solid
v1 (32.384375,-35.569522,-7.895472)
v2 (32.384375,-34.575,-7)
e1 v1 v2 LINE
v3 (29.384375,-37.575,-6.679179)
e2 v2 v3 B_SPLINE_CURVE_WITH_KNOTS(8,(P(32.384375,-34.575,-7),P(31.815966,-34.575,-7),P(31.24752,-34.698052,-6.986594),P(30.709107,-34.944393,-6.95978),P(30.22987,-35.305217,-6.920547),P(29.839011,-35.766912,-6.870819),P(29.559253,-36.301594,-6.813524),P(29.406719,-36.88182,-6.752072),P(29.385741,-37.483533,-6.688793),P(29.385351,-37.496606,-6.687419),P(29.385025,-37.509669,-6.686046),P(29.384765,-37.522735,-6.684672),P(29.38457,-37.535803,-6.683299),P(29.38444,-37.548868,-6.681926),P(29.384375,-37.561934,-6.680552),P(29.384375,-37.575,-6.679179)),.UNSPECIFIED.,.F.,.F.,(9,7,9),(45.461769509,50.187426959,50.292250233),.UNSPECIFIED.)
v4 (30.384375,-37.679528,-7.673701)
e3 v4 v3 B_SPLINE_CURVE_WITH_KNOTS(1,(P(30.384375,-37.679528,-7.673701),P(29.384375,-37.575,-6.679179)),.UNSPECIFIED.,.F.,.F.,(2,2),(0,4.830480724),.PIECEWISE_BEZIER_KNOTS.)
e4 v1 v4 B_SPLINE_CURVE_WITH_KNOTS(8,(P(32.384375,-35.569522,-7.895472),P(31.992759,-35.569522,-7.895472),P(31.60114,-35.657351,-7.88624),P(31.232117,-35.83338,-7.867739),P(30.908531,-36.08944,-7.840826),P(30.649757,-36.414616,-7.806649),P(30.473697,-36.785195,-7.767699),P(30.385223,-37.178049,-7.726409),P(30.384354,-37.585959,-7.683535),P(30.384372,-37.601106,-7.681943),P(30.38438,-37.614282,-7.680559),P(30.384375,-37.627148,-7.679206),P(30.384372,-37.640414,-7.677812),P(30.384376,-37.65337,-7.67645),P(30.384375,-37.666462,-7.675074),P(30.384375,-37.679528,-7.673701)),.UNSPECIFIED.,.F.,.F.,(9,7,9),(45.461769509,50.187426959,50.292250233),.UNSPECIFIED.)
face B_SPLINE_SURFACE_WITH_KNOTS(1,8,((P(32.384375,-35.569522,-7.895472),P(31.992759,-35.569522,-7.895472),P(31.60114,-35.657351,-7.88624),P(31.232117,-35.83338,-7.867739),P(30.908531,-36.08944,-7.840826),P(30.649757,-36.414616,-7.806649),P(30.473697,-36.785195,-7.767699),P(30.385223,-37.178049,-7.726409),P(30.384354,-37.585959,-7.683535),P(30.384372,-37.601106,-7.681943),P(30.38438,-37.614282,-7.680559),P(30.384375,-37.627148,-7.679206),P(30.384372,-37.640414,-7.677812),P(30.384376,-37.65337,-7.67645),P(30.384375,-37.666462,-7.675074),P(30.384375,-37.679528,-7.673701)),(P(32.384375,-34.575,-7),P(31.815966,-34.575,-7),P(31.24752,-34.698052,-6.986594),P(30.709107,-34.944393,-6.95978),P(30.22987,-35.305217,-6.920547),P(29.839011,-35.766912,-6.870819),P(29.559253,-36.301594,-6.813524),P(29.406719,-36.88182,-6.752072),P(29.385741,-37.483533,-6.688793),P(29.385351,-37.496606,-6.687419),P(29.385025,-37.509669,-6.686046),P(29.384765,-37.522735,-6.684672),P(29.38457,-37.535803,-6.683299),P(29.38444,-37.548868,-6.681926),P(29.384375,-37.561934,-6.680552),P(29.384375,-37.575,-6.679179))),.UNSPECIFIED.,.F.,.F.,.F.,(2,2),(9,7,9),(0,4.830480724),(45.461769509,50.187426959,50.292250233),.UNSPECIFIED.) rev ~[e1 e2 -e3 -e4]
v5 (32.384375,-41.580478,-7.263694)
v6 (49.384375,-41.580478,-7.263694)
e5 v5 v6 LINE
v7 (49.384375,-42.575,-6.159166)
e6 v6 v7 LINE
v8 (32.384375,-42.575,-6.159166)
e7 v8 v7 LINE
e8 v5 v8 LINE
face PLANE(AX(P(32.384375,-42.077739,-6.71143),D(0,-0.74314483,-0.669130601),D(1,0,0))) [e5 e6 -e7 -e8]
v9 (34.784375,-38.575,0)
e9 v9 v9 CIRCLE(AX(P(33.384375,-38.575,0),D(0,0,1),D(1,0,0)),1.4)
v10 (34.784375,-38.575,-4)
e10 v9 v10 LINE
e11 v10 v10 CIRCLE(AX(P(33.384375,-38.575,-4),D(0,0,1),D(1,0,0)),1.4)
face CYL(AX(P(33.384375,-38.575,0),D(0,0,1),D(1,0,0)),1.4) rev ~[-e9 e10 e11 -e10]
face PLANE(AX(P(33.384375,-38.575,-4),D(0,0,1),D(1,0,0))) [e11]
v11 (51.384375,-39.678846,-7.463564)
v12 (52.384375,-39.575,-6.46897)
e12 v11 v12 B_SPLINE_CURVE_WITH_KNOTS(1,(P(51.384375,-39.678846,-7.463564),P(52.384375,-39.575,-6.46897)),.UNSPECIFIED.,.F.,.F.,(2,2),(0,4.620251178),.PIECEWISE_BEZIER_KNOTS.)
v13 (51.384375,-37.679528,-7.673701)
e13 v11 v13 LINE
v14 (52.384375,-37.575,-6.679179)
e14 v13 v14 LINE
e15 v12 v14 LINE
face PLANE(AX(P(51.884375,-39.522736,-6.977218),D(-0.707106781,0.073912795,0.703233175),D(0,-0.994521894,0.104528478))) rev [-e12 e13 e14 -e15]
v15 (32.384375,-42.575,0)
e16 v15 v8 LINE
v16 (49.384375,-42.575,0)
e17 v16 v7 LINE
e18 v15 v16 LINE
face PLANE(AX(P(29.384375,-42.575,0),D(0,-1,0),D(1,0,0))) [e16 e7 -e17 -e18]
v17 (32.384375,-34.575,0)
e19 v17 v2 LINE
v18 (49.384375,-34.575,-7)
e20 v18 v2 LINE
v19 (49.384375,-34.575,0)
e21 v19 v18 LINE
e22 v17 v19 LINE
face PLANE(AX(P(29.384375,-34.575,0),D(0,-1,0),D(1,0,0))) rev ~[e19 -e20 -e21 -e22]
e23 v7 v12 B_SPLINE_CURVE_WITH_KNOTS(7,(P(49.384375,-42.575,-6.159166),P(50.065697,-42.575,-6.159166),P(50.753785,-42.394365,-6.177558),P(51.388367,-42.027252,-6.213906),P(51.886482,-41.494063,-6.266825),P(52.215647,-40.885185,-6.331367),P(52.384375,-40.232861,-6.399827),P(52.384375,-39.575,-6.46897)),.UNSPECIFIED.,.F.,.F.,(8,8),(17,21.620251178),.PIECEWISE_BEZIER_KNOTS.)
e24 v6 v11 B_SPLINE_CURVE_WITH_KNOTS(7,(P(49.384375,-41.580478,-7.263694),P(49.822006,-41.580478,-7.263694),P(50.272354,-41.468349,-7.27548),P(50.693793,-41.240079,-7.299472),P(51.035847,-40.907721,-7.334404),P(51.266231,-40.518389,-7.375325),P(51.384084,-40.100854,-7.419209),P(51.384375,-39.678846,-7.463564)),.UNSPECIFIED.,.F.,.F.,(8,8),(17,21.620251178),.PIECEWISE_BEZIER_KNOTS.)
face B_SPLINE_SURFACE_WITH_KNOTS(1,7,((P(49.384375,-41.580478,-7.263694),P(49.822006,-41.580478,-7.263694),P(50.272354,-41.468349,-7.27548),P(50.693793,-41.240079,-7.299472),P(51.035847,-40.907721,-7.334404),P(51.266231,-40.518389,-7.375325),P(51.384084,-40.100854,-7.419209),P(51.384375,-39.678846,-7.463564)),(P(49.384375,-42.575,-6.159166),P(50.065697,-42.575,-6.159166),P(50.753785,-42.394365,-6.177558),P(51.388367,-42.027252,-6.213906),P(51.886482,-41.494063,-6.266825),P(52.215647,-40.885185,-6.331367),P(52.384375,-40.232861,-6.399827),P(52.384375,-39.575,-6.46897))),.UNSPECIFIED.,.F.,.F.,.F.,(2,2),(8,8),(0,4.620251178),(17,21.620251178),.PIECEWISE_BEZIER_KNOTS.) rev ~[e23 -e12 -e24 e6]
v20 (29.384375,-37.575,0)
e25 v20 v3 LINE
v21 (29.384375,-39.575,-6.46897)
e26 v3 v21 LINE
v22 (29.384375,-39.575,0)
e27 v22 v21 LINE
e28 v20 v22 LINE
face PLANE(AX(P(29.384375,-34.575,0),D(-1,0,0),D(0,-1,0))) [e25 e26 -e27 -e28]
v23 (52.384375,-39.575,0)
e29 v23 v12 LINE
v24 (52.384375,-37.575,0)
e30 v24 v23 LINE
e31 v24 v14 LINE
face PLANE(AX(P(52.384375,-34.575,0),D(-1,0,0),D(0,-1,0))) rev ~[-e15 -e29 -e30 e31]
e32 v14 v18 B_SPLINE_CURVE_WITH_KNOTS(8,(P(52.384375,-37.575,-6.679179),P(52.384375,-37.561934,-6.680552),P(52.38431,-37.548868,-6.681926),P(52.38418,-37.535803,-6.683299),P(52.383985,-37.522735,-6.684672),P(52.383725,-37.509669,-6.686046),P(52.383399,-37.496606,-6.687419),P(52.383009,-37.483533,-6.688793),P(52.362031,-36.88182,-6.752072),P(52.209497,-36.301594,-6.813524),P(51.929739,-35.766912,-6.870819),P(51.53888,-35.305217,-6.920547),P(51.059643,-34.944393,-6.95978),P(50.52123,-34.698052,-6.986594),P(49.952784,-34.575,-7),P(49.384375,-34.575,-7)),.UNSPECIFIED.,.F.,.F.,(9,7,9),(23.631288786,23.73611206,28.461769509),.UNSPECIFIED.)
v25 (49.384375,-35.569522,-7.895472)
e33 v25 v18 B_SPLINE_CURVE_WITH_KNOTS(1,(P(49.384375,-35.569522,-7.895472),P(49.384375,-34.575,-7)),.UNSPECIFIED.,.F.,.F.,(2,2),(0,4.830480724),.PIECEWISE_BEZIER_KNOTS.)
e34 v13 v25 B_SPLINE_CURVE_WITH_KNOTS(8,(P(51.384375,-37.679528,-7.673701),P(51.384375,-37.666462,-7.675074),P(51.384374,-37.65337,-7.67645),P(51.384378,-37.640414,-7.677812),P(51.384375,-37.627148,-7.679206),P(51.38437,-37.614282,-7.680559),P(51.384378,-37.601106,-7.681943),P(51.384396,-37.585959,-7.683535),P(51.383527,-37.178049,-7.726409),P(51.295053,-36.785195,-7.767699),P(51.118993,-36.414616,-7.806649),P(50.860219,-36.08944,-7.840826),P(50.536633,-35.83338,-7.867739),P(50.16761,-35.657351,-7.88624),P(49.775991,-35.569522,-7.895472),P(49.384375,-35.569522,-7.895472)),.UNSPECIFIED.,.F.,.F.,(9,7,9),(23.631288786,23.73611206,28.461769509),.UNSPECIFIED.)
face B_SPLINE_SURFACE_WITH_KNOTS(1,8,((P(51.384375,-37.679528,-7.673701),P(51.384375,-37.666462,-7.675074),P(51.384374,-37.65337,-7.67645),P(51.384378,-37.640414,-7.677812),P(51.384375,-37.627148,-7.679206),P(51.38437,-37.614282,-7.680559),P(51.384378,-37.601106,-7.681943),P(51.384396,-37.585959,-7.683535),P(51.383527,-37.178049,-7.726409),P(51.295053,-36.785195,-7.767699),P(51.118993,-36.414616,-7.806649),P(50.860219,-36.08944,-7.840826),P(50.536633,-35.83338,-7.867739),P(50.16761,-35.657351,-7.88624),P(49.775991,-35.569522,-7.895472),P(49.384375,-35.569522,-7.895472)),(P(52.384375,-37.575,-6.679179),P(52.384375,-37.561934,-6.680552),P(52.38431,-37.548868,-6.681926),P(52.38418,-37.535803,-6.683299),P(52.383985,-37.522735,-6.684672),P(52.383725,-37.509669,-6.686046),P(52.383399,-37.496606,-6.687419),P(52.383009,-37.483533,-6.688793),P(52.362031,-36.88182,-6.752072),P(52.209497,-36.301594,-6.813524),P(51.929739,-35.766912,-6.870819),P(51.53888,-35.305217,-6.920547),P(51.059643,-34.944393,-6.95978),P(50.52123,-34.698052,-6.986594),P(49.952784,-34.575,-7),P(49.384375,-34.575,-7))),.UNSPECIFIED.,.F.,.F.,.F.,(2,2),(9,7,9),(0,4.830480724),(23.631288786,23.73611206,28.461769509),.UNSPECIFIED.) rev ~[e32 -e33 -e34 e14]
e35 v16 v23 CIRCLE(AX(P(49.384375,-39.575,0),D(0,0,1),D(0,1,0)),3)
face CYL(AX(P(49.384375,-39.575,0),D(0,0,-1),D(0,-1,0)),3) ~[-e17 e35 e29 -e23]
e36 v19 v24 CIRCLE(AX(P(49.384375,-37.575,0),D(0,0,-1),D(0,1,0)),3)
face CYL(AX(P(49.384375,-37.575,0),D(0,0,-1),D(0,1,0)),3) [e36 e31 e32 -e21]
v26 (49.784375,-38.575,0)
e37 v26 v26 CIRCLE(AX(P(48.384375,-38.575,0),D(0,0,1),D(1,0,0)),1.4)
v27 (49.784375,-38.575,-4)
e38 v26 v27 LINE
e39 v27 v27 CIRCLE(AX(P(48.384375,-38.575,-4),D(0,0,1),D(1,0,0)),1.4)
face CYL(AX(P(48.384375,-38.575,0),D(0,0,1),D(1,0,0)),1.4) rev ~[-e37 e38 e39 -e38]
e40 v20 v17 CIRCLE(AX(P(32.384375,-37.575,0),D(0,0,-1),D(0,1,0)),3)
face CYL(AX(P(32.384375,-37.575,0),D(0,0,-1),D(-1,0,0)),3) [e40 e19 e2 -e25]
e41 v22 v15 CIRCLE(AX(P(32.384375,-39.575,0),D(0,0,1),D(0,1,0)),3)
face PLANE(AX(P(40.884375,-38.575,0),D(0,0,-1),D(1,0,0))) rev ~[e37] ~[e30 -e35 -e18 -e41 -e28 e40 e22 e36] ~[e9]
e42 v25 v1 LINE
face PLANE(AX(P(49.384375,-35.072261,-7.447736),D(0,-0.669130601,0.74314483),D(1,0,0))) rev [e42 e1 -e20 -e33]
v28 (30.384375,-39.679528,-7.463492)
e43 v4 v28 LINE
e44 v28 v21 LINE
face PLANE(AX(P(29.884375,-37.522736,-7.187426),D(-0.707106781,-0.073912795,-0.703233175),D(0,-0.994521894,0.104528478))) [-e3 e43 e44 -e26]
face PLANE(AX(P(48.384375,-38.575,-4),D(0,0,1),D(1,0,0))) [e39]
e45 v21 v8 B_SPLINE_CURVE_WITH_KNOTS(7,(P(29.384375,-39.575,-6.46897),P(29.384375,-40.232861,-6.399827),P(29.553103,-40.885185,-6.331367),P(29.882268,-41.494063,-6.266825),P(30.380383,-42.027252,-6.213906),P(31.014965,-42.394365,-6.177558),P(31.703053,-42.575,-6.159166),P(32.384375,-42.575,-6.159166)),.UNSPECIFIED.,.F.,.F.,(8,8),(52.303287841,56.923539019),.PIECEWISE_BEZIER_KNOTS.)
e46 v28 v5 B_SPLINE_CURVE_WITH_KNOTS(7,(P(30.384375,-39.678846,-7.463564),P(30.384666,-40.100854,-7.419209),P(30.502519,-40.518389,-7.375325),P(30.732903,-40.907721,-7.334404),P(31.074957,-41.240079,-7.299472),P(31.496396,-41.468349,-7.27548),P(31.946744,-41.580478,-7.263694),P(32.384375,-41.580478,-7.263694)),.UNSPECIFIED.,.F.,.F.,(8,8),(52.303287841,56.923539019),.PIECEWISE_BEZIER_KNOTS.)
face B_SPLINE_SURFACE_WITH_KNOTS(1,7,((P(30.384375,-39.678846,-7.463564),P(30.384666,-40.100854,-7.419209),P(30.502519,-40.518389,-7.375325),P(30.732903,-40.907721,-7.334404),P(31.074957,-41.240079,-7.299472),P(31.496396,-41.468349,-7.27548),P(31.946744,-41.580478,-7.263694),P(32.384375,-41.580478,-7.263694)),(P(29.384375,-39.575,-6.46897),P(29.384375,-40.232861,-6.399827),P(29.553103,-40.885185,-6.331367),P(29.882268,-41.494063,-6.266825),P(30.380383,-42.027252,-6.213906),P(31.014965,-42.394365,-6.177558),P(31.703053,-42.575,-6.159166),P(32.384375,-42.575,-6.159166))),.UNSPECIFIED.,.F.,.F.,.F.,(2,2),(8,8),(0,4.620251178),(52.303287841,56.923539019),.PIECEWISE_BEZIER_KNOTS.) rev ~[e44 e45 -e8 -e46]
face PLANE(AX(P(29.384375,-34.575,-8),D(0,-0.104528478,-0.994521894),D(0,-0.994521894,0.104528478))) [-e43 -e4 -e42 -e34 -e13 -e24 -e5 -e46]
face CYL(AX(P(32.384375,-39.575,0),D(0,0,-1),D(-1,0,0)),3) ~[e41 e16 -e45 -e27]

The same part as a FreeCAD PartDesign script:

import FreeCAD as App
import Part
import Sketcher
Q = App.Units.Quantity


def edges_at(feature, points):
    """Names of the edges that pass closest to the given points."""
    edges = feature.Shape.Edges
    near = lambda p: min(range(len(edges)), key=lambda i: edges[i].distToShape(Part.Vertex(*p))[0])
    return sorted({f"Edge{near(p) + 1}" for p in points})


def add_polygon(sketch, points):
    """Adds a closed chain of lines whose ends are joined by coincident constraints."""
    first, n = sketch.GeometryCount, len(points)
    for a, b in zip(points, points[1:] + points[:1]):
        sketch.addGeometry(Part.LineSegment(App.Vector(*a, 0), App.Vector(*b, 0)), False)
    for i in range(n):
        sketch.addConstraint(Sketcher.Constraint("Coincident", first + i, 2, first + (i + 1) % n, 1))

doc = App.newDocument("Part")
body = doc.addObject("PartDesign::Body", "Body")

sketch1 = doc.addObject("Sketcher::SketchObject", "Sketch")
body.addObject(sketch1)
sketch1.AttachmentSupport = (doc.XY_Plane, [""])
sketch1.MapMode = "FlatFace"
add_polygon(sketch1, [(29, -43), (29, -35), (52, -35), (52, -43)])
sketch1.addConstraint([
    Sketcher.Constraint("Vertical", 0),
    Sketcher.Constraint("Horizontal", 1),
    Sketcher.Constraint("Vertical", 2),
    Sketcher.Constraint("Horizontal", 3),
    Sketcher.Constraint("DistanceX", 1, 1, 1, 2, 23.0),
    Sketcher.Constraint("DistanceY", 0, 1, 0, 2, 8.0),
    Sketcher.Constraint("DistanceY", 0, 2, -1, 1, 34.575),
    Sketcher.Constraint("DistanceX", -1, 1, 0, 2, 29.384375),
])
pad1 = doc.addObject("PartDesign::Pad", "Pad")
body.addObject(pad1)
pad1.Profile = sketch1
pad1.Length = 8
pad1.Reversed = True

sketch2 = doc.addObject("Sketcher::SketchObject", "Sketch001")
body.addObject(sketch2)
sketch2.AttachmentSupport = (doc.XY_Plane, [""])
sketch2.MapMode = "FlatFace"
sketch2.addGeometry([
    Part.Circle(App.Vector(33.4, -38.6, 0), App.Vector(0, 0, 1), 1.4),
    Part.Circle(App.Vector(48.4, -38.6, 0), App.Vector(0, 0, 1), 1.4),
], False)
sketch2.addConstraint([
    Sketcher.Constraint("Equal", 0, 1),
    Sketcher.Constraint("Horizontal", 0, 3, 1, 3),
    Sketcher.Constraint("Diameter", 0, 2.8),
    Sketcher.Constraint("DistanceX", 0, 3, 1, 3, 15.0),
    Sketcher.Constraint("DistanceY", 0, 3, -1, 1, 38.575),
    Sketcher.Constraint("DistanceX", -1, 1, 0, 3, 33.384375),
])
pocket1 = doc.addObject("PartDesign::Pocket", "Pocket")
body.addObject(pocket1)
pocket1.Profile = sketch2
pocket1.Length = 4

sketch3 = doc.addObject("Sketcher::SketchObject", "Sketch002")
body.addObject(sketch3)
sketch3.AttachmentSupport = (doc.YZ_Plane, [""])
sketch3.MapMode = "FlatFace"
sketch3.AttachmentOffset = App.Placement(App.Vector(0, 0, 29.384375), App.Rotation())
add_polygon(sketch3, [(-42.6, -7.2), (-34.6, -8), (-42.6, -8)])
sketch3.addConstraint([
    Sketcher.Constraint("Horizontal", 1),
    Sketcher.Constraint("Vertical", 2),
    Sketcher.Constraint("DistanceX", 1, 2, 1, 1, 8.0),
    Sketcher.Constraint("Angle", 0, Q("-6.000001 deg")),
    Sketcher.Constraint("DistanceY", 0, 2, -1, 1, 8.0),
    Sketcher.Constraint("DistanceX", 0, 2, -1, 1, 34.575),
])
pocket2 = doc.addObject("PartDesign::Pocket", "Pocket001")
body.addObject(pocket2)
pocket2.Profile = sketch3
pocket2.Type = "ThroughAll"
pocket2.Reversed = True
doc.recompute()

fillet = doc.addObject("PartDesign::Fillet", "Fillet")
body.addObject(fillet)
fillet.Base = (pocket2, edges_at(pocket2, [
    (29.384, -34.575, -4),
    (52.384, -34.575, -4),
    (52.384, -42.575, -3.58),
    (29.384, -42.575, -3.58),
]))
fillet.Radius = 3
doc.recompute()

chamfer = doc.addObject("PartDesign::Chamfer", "Chamfer")
body.addObject(chamfer)
chamfer.Base = (fillet, edges_at(fillet, [(40.884, -42.575, -7.159)]))
chamfer.Size = 1

doc.recompute()
